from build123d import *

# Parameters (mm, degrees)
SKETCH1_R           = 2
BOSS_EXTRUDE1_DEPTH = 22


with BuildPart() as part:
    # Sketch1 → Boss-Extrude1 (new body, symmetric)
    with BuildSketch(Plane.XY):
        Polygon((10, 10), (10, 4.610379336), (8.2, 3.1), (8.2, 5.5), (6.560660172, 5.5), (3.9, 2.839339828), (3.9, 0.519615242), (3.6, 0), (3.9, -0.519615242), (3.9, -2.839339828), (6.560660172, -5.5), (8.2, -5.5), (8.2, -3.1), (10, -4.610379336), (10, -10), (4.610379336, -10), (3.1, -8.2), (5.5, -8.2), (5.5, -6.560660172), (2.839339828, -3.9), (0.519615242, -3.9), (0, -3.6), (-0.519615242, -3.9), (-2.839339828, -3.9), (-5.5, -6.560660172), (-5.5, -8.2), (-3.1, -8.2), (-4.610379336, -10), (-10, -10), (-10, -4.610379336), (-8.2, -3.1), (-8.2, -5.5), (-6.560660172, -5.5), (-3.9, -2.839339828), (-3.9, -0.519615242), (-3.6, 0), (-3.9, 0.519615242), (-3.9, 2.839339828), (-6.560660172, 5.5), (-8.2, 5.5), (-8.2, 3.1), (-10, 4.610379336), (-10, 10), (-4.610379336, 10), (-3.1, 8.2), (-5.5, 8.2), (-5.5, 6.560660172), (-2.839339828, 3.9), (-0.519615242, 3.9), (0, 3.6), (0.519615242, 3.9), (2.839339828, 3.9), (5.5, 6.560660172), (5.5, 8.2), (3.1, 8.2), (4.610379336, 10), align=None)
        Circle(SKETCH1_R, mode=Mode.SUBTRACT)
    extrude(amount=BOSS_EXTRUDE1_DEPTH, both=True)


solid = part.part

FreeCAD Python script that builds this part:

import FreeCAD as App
import Part
import Sketcher
from FreeCAD import Vector
Q = App.Units.Quantity


def add_polygon(sketch, points):
    """Adds a closed chain of lines whose ends are joined by coincident constraints."""
    first, n = sketch.GeometryCount, len(points)
    for a, b in zip(points, points[1:] + points[:1]):
        sketch.addGeometry(Part.LineSegment(App.Vector(*a, 0), App.Vector(*b, 0)), False)
    for i in range(n):
        sketch.addConstraint(Sketcher.Constraint("Coincident", first + i, 2, first + (i + 1) % n, 1))

doc = App.newDocument("Part")
params = doc.addObject("Spreadsheet::Sheet", "Params")
for row, (alias, value) in enumerate([
    ("sketch1_diameter", "4 mm"),
    ("sketch1_width", "2.4 mm"),
    ("sketch1_length", "0.6 mm"),
    ("pad1_length", "44 mm"),
], start=1):
    params.set(f"A{row}", alias)
    params.set(f"B{row}", "=" + value)
    params.setAlias(f"B{row}", alias)

body = doc.addObject("PartDesign::Body", "Body")

sketch1 = body.newObject("Sketcher::SketchObject", "Sketch")
sketch1.AttachmentSupport = (doc.getObject("XY_Plane"), [""])
sketch1.MapMode = "FlatFace"
add_polygon(sketch1, [(10, 4.6), (10, 10), (4.6, 10), (3.1, 8.2), (5.5, 8.2), (5.5, 6.6), (2.8, 3.9), (0.5, 3.9), (0, 3.6), (-0.5, 3.9), (-2.8, 3.9), (-5.5, 6.6), (-5.5, 8.2), (-3.1, 8.2), (-4.6, 10), (-10, 10), (-10, 4.6), (-8.2, 3.1), (-8.2, 5.5), (-6.6, 5.5), (-3.9, 2.8), (-3.9, 0.5), (-3.6, 0), (-3.9, -0.5), (-3.9, -2.8), (-6.6, -5.5), (-8.2, -5.5), (-8.2, -3.1), (-10, -4.6), (-10, -10), (-4.6, -10), (-3.1, -8.2), (-5.5, -8.2), (-5.5, -6.6), (-2.8, -3.9), (-0.5, -3.9), (0, -3.6), (0.5, -3.9), (2.8, -3.9), (5.5, -6.6), (5.5, -8.2), (3.1, -8.2), (4.6, -10), (10, -10), (10, -4.6), (8.2, -3.1), (8.2, -5.5), (6.6, -5.5), (3.9, -2.8), (3.9, -0.5), (3.6, 0), (3.9, 0.5), (3.9, 2.8), (6.6, 5.5), (8.2, 5.5), (8.2, 3.1)])
sketch1.addGeometry(Part.Circle(Vector(0, 0, 0), Vector(0, 0, 1), 2), False)
sketch1.addConstraint([
    Sketcher.Constraint("Vertical", 0),
    Sketcher.Constraint("Horizontal", 1),
    Sketcher.Constraint("Horizontal", 3),
    Sketcher.Constraint("Vertical", 4),
    Sketcher.Constraint("Horizontal", 6),
    Sketcher.Constraint("Horizontal", 9),
    Sketcher.Constraint("Vertical", 11),
    Sketcher.Constraint("Horizontal", 12),
    Sketcher.Constraint("Horizontal", 14),
    Sketcher.Constraint("Vertical", 15),
    Sketcher.Constraint("Vertical", 17),
    Sketcher.Constraint("Horizontal", 18),
    Sketcher.Constraint("Vertical", 20),
    Sketcher.Constraint("Vertical", 23),
    Sketcher.Constraint("Horizontal", 25),
    Sketcher.Constraint("Vertical", 26),
    Sketcher.Constraint("Vertical", 28),
    Sketcher.Constraint("Horizontal", 29),
    Sketcher.Constraint("Horizontal", 31),
    Sketcher.Constraint("Vertical", 32),
    Sketcher.Constraint("Horizontal", 34),
    Sketcher.Constraint("Horizontal", 37),
    Sketcher.Constraint("Vertical", 39),
    Sketcher.Constraint("Horizontal", 40),
    Sketcher.Constraint("Horizontal", 42),
    Sketcher.Constraint("Vertical", 43),
    Sketcher.Constraint("Vertical", 45),
    Sketcher.Constraint("Horizontal", 46),
    Sketcher.Constraint("Vertical", 48),
    Sketcher.Constraint("Vertical", 51),
    Sketcher.Constraint("Horizontal", 53),
    Sketcher.Constraint("Vertical", 54),
    Sketcher.Constraint("Coincident", 56, 3, -1, 1),
    Sketcher.Constraint("Symmetric", 0, 2, 28, 2, -1, 1),
    Sketcher.Constraint("Symmetric", 2, 2, 30, 2, -1, 1),
    Sketcher.Constraint("Symmetric", 4, 2, 32, 2, -1, 1),
    Sketcher.Constraint("Symmetric", 5, 2, 33, 2, -1, 1),
    Sketcher.Constraint("Symmetric", 7, 2, 35, 2, -1, 1),
    Sketcher.Constraint("Symmetric", 8, 2, 36, 2, -1, 1),
    Sketcher.Constraint("Symmetric", 10, 2, 38, 2, -1, 1),
    Sketcher.Constraint("Symmetric", 12, 2, 40, 2, -1, 1),
    Sketcher.Constraint("Symmetric", 13, 2, 41, 2, -1, 1),
    Sketcher.Constraint("Symmetric", 15, 2, 43, 2, -1, 1),
    Sketcher.Constraint("Symmetric", 16, 2, 44, 2, -1, 1),
    Sketcher.Constraint("Symmetric", 18, 2, 46, 2, -1, 1),
    Sketcher.Constraint("Symmetric", 19, 2, 47, 2, -1, 1),
    Sketcher.Constraint("Symmetric", 21, 2, 49, 2, -1, 1),
    Sketcher.Constraint("Symmetric", 22, 2, 50, 2, -1, 1),
    Sketcher.Constraint("Symmetric", 24, 2, 52, 2, -1, 1),
    Sketcher.Constraint("Symmetric", 26, 2, 54, 2, -1, 1),
    Sketcher.Constraint("Symmetric", 6, 2, 8, 2, -2),
    Sketcher.Constraint("Symmetric", 4, 2, 10, 2, -2),
    Sketcher.Constraint("Symmetric", 2, 2, 12, 2, -2),
    Sketcher.Constraint("Symmetric", 1, 2, 13, 2, -2),
    Sketcher.Constraint("Symmetric", 27, 2, 43, 2, -2),
    Sketcher.Constraint("Symmetric", 26, 2, 44, 2, -2),
    Sketcher.Constraint("Symmetric", 24, 2, 46, 2, -2),
    Sketcher.Constraint("Symmetric", 23, 2, 47, 2, -2),
    Sketcher.Constraint("PointOnObject", 7, 2, -2),
    Sketcher.Constraint("PointOnObject", 21, 2, -1),
    Sketcher.Constraint("Perpendicular", 5, 10),
    Sketcher.Constraint("Perpendicular", 2, 16),
    Sketcher.Constraint("Parallel", 10, 19),
    Sketcher.Constraint("Perpendicular", 7, 21),
    Sketcher.Constraint("Perpendicular", 8, 22),
    Sketcher.Constraint("Perpendicular", 19, 24),
    Sketcher.Constraint("Perpendicular", 16, 30),
    Sketcher.Constraint("Perpendicular", 21, 35),
    Sketcher.Constraint("Perpendicular", 33, 38),
    Sketcher.Constraint("Perpendicular", 35, 49),
    Sketcher.Constraint("Perpendicular", 47, 52),
    Sketcher.Constraint("Perpendicular", 41, 55),
    Sketcher.Constraint("Equal", 42, 0),
    Sketcher.Constraint("Equal", 53, 4),
    Sketcher.Constraint("Equal", 40, 17),
    Sketcher.Constraint("Equal", 37, 20),
    Sketcher.Constraint("Equal", 13, 16),
    Sketcher.Constraint("Equal", 10, 19),
    Sketcher.Constraint("Equal", 8, 21),
    Sketcher.Constraint("Diameter", 56, 4.0),
    Sketcher.Constraint("Angle", 2, Q("-130 deg")),
    Sketcher.Constraint("Angle", 7, Q("-150 deg")),
    Sketcher.Constraint("DistanceX", 3, 1, 3, 2, 2.4),
    Sketcher.Constraint("DistanceX", -1, 1, 0, 2, 10.0),
    Sketcher.Constraint("Distance", 7, 0.6),
    Sketcher.Constraint("DistanceX", -1, 1, 2, 2, 3.1),
    Sketcher.Constraint("DistanceY", -1, 1, 2, 2, 8.2),
    Sketcher.Constraint("DistanceY", -1, 1, 5, 2, 3.9),
    Sketcher.Constraint("DistanceX", 18, 1, 18, 2, 1.63934),
])
sketch1.setExpression("Constraints[135]", "Params.sketch1_diameter")
sketch1.setExpression("Constraints[138]", "Params.sketch1_width")
sketch1.setExpression("Constraints[140]", "Params.sketch1_length")
pad1 = body.newObject("PartDesign::Pad", "Pad")
pad1.Profile = sketch1
pad1.setExpression("Length", "Params.pad1_length")
pad1.Midplane = True

doc.recompute()
